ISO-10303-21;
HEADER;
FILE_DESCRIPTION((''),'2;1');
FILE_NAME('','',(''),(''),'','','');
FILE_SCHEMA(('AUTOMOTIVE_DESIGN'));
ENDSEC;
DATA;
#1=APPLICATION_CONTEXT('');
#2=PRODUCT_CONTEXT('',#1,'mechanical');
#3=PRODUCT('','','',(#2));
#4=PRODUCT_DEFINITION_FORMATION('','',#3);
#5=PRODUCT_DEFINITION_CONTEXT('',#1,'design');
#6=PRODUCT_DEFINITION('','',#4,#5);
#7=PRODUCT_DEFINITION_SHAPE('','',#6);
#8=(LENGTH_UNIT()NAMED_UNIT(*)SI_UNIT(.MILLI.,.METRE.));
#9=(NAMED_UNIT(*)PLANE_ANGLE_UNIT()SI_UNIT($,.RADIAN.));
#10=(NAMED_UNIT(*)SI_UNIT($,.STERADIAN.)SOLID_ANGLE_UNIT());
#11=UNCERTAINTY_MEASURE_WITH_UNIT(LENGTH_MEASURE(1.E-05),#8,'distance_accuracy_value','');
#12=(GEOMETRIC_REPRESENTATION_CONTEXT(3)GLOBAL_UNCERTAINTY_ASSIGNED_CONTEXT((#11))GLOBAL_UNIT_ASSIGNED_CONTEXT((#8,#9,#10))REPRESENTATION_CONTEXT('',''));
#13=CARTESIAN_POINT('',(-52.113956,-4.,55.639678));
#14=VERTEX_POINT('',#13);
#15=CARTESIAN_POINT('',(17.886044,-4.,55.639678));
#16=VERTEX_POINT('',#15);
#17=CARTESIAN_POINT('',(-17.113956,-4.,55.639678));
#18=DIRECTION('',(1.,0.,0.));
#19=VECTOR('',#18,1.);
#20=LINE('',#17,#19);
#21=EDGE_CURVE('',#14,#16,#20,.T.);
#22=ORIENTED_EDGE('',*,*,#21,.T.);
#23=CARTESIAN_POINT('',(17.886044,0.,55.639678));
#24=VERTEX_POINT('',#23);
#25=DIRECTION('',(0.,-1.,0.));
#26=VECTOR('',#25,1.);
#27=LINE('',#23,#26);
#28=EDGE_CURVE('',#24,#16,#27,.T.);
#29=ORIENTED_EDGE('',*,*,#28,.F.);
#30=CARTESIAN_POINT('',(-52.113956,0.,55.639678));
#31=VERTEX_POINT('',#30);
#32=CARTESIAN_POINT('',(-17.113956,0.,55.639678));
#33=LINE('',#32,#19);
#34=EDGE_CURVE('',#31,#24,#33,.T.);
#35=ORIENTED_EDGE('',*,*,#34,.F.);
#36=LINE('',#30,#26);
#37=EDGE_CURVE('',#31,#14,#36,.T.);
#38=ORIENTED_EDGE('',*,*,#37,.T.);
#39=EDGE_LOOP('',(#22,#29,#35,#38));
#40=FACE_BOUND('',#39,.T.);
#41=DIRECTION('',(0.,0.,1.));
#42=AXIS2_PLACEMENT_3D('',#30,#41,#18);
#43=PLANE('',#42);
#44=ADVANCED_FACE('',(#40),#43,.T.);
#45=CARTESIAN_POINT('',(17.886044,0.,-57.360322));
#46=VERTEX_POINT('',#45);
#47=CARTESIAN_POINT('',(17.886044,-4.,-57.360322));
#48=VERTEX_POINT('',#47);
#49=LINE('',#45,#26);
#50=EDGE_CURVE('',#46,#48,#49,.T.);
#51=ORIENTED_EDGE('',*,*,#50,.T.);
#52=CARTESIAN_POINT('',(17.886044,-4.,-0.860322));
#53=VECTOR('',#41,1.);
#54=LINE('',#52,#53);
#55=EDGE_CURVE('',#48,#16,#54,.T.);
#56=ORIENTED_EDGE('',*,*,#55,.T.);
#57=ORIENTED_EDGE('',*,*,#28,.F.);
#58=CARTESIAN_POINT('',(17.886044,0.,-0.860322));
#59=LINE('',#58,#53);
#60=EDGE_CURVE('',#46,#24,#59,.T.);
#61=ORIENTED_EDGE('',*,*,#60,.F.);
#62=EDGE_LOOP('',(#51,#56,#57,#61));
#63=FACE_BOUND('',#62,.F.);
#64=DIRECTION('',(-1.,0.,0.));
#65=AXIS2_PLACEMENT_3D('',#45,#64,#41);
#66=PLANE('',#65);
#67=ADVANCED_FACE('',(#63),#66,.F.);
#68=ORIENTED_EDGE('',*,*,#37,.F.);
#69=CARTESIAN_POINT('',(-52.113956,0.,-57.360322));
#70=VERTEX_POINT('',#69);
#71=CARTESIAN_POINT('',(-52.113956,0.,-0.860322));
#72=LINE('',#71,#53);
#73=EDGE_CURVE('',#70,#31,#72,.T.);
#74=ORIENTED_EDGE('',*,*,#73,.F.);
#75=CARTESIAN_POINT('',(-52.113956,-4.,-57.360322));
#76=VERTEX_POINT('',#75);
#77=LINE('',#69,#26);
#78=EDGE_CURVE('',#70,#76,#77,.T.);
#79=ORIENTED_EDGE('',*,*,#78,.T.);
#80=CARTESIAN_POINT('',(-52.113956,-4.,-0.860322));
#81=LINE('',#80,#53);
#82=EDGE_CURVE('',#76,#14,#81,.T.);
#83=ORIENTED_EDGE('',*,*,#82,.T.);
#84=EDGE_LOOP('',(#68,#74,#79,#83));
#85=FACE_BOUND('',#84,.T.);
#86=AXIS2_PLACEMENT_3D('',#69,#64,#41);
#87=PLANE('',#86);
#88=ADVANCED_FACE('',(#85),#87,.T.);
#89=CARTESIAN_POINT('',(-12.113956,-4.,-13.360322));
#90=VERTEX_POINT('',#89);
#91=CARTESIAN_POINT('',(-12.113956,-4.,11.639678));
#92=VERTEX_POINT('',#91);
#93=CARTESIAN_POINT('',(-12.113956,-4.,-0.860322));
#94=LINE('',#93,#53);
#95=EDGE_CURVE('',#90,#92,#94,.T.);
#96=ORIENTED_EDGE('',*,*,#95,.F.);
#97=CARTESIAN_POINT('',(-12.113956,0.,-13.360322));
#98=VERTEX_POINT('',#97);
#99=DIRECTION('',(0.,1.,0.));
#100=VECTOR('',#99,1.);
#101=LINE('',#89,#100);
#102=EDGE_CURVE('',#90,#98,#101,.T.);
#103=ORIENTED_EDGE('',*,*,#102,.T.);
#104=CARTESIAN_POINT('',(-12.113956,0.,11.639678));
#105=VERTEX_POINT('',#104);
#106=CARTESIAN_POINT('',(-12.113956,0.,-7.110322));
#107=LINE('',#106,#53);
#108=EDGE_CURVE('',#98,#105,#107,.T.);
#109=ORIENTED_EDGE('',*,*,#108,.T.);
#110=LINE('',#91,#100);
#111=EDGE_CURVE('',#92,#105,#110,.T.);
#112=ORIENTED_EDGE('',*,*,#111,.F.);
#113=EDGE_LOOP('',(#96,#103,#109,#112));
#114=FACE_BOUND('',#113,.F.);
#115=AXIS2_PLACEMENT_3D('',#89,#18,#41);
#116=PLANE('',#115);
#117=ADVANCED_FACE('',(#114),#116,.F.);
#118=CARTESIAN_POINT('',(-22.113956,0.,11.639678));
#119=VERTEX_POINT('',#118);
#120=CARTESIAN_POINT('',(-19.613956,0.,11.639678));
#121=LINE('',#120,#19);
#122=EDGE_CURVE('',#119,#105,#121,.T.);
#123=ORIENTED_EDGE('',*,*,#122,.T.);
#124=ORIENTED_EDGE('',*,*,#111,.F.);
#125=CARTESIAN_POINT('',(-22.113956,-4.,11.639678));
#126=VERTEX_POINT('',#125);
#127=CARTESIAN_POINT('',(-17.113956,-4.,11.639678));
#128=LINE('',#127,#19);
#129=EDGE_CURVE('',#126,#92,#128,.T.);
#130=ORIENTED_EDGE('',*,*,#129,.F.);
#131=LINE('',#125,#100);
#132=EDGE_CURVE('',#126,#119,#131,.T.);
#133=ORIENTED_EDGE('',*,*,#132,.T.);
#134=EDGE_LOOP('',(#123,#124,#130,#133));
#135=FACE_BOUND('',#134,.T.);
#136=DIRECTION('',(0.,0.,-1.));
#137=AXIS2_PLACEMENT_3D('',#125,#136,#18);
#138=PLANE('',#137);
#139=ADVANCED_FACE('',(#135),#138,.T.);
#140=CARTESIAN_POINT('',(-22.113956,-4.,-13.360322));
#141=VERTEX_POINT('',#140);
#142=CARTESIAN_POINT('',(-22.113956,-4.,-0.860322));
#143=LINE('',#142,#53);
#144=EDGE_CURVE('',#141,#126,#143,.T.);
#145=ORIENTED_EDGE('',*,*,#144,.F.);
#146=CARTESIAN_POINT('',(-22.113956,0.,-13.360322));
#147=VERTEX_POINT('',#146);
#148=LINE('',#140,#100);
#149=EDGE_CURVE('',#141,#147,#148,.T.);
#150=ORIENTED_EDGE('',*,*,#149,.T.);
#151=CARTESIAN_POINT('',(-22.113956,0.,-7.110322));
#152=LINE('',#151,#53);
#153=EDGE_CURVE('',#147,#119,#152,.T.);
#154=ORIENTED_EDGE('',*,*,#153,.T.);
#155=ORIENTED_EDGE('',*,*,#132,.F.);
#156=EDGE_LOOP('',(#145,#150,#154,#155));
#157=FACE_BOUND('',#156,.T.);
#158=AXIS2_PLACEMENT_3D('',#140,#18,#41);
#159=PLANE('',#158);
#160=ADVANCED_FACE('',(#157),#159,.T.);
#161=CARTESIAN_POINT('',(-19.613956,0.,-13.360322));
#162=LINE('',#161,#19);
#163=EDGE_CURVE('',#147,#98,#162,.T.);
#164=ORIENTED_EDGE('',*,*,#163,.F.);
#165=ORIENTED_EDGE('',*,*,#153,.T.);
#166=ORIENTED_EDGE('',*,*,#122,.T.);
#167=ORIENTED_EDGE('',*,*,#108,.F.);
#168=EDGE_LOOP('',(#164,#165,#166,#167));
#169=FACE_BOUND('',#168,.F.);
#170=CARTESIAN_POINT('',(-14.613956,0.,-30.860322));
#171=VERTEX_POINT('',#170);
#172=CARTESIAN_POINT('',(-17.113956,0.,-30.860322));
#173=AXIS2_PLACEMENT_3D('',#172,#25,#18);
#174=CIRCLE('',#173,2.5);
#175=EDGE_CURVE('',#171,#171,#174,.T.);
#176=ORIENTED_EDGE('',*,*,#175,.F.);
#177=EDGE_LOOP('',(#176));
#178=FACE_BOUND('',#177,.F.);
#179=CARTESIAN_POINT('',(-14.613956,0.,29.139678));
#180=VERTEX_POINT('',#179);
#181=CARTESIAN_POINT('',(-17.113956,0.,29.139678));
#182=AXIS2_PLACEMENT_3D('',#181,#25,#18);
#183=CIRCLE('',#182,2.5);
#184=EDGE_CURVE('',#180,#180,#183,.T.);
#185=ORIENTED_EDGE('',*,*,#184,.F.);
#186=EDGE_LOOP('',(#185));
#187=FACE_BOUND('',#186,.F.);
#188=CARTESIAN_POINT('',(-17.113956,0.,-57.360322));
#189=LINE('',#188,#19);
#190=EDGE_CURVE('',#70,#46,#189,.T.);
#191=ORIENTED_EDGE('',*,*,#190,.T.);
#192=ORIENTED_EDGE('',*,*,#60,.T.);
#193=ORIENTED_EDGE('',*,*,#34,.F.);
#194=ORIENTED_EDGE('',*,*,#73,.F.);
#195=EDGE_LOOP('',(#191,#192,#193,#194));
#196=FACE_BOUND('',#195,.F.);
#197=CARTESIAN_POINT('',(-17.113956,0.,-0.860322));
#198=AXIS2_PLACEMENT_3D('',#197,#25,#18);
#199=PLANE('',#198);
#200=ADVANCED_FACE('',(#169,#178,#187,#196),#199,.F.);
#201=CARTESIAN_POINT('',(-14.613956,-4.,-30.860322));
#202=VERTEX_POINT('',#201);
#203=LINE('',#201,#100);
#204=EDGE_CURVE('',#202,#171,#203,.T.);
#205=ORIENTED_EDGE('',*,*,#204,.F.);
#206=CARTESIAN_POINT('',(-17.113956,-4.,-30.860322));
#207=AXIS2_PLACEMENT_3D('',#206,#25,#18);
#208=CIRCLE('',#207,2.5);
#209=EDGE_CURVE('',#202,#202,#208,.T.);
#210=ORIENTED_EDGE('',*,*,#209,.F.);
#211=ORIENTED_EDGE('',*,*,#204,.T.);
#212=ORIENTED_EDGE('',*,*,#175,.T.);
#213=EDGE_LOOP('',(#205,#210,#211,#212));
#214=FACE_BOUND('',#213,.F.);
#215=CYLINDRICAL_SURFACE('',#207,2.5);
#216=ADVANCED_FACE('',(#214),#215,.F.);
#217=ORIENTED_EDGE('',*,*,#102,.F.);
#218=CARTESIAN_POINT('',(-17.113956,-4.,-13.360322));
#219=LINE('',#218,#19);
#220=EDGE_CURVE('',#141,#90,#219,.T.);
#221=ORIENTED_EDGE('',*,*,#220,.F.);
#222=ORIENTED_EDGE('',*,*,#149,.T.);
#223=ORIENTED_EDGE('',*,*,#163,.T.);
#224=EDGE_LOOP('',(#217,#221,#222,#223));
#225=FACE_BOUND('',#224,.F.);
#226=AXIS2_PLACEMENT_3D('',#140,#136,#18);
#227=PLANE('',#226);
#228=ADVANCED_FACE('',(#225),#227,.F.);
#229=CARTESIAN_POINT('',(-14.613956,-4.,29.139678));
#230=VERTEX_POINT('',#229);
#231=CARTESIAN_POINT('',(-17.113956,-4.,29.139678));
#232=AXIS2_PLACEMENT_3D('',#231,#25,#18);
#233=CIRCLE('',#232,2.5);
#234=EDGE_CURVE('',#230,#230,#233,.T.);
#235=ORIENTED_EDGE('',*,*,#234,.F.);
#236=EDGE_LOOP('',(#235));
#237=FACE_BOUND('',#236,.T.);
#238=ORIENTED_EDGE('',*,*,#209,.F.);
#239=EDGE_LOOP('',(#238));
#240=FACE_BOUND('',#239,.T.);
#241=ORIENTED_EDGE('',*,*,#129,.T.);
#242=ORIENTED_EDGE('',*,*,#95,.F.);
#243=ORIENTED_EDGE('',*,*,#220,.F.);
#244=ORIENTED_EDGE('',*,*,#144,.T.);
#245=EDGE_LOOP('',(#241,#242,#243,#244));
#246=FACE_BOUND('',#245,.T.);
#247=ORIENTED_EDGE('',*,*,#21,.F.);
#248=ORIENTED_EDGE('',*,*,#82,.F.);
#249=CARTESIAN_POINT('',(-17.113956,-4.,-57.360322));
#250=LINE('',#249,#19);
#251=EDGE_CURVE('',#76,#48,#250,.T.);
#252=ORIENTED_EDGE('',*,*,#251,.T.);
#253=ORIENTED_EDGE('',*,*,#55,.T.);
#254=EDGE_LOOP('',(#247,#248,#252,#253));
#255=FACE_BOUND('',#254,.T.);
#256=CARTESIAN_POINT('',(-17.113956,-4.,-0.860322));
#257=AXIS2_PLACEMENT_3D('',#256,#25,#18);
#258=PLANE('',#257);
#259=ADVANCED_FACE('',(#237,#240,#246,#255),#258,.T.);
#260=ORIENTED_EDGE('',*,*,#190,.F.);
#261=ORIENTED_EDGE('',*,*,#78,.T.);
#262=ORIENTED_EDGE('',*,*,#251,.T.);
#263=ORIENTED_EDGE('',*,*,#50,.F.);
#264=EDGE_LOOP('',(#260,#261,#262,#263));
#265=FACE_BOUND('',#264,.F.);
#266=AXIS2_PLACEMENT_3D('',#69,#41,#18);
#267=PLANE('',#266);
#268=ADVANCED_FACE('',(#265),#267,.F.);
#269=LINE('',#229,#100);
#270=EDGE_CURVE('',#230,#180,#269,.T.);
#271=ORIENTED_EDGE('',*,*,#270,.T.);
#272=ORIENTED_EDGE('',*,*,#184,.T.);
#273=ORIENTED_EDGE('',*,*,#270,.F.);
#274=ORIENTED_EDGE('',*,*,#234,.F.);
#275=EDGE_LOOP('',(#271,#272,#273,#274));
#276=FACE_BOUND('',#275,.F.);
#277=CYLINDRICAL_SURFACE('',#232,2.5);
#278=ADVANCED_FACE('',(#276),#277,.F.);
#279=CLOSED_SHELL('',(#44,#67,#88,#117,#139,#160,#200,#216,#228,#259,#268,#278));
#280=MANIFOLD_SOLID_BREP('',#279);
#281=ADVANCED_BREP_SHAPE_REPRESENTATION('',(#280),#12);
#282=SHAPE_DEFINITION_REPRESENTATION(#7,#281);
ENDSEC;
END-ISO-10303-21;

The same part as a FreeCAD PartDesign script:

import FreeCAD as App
import Part
import Sketcher

doc = App.newDocument("Part")
params = doc.addObject("Spreadsheet::Sheet", "Params")
for row, (alias, value) in enumerate([
    ("sketch1_width", "70 mm"),
    ("sketch1_height", "113 mm"),
    ("pad1_length", "4 mm"),
    ("sketch2_diameter", "5 mm"),
    ("sketch2_width", "10 mm"),
    ("sketch2_height", "25 mm"),
], start=1):
    params.set(f"A{row}", alias)
    params.set(f"B{row}", "=" + value)
    params.setAlias(f"B{row}", alias)

body = doc.addObject("PartDesign::Body", "Body")

# Sketch on XZ plane
sketch1 = doc.addObject("Sketcher::SketchObject", "Sketch")
body.addObject(sketch1)
sketch1.AttachmentSupport = (doc.XZ_Plane, [""])
sketch1.MapMode = "FlatFace"
sketch1.addGeometry([
    Part.LineSegment(App.Vector(-52.113956, 55.639678, 0), App.Vector(-52.113956, -57.360322, 0)),
    Part.LineSegment(App.Vector(-52.113956, -57.360322, 0), App.Vector(17.886044, -57.360322, 0)),
    Part.LineSegment(App.Vector(17.886044, -57.360322, 0), App.Vector(17.886044, 55.639678, 0)),
    Part.LineSegment(App.Vector(17.886044, 55.639678, 0), App.Vector(-52.113956, 55.639678, 0)),
], False)
sketch1.addConstraint([
    Sketcher.Constraint("Coincident", 0, 2, 1, 1),
    Sketcher.Constraint("Coincident", 1, 2, 2, 1),
    Sketcher.Constraint("Coincident", 2, 2, 3, 1),
    Sketcher.Constraint("Coincident", 3, 2, 0, 1),
    Sketcher.Constraint("Vertical", 0),
    Sketcher.Constraint("Horizontal", 1),
    Sketcher.Constraint("Vertical", 2),
    Sketcher.Constraint("Horizontal", 3),
    Sketcher.Constraint("DistanceX", 1, 1, 1, 2, 70.0),
    Sketcher.Constraint("DistanceY", 0, 2, 0, 1, 113.0),
    Sketcher.Constraint("DistanceY", 0, 2, -1, 1, 57.360322),
    Sketcher.Constraint("DistanceX", 0, 2, -1, 1, 52.113956),
])
sketch1.setExpression("Constraints[8]", "Params.sketch1_width")
sketch1.setExpression("Constraints[9]", "Params.sketch1_height")
pad1 = doc.addObject("PartDesign::Pad", "Pad")
body.addObject(pad1)
pad1.Profile = sketch1
pad1.setExpression("Length", "Params.pad1_length")

# Sketch on XZ plane
sketch2 = doc.addObject("Sketcher::SketchObject", "Sketch001")
body.addObject(sketch2)
sketch2.AttachmentSupport = (doc.XZ_Plane, [""])
sketch2.MapMode = "FlatFace"
sketch2.AttachmentOffset = App.Placement(App.Vector(0, 0, 4), App.Rotation())
sketch2.addGeometry([
    Part.LineSegment(App.Vector(-22.113956, 11.639678, 0), App.Vector(-22.113956, -13.360322, 0)),  # 0
    Part.LineSegment(App.Vector(-22.113956, -13.360322, 0), App.Vector(-12.113956, -13.360322, 0)),  # 1
    Part.LineSegment(App.Vector(-12.113956, -13.360322, 0), App.Vector(-12.113956, 11.639678, 0)),  # 2
    Part.LineSegment(App.Vector(-12.113956, 11.639678, 0), App.Vector(-22.113956, 11.639678, 0)),  # 3
    Part.Circle(App.Vector(-17.113956, 29.139678, 0), App.Vector(0, 0, 1), 2.5),  # 4
    Part.Circle(App.Vector(-17.113956, -30.860322, 0), App.Vector(0, 0, 1), 2.5),  # 5
], False)
sketch2.addConstraint([
    Sketcher.Constraint("Coincident", 0, 2, 1, 1),
    Sketcher.Constraint("Coincident", 1, 2, 2, 1),
    Sketcher.Constraint("Coincident", 2, 2, 3, 1),
    Sketcher.Constraint("Coincident", 3, 2, 0, 1),
    Sketcher.Constraint("Vertical", 0),
    Sketcher.Constraint("Horizontal", 1),
    Sketcher.Constraint("Vertical", 2),
    Sketcher.Constraint("Horizontal", 3),
    Sketcher.Constraint("Equal", 4, 5),
    Sketcher.Constraint("Vertical", 4, 3, 5, 3),
    Sketcher.Constraint("Diameter", 4, 5.0),
    Sketcher.Constraint("DistanceX", 1, 1, 1, 2, 10.0),
    Sketcher.Constraint("DistanceY", 0, 2, 0, 1, 25.0),
    Sketcher.Constraint("DistanceY", 5, 3, 4, 3, 60.0),
    Sketcher.Constraint("DistanceX", 0, 2, 5, 3, 5.0),
    Sketcher.Constraint("DistanceY", 5, 3, 0, 2, 17.5),
    Sketcher.Constraint("DistanceY", -1, 1, 4, 3, 29.139678),
    Sketcher.Constraint("DistanceX", 4, 3, -1, 1, 17.113956),
])
sketch2.setExpression("Constraints[10]", "Params.sketch2_diameter")
sketch2.setExpression("Constraints[11]", "Params.sketch2_width")
sketch2.setExpression("Constraints[12]", "Params.sketch2_height")
pocket1 = doc.addObject("PartDesign::Pocket", "Pocket")
body.addObject(pocket1)
pocket1.Profile = sketch2
pocket1.Type = "ThroughAll"

doc.recompute()
